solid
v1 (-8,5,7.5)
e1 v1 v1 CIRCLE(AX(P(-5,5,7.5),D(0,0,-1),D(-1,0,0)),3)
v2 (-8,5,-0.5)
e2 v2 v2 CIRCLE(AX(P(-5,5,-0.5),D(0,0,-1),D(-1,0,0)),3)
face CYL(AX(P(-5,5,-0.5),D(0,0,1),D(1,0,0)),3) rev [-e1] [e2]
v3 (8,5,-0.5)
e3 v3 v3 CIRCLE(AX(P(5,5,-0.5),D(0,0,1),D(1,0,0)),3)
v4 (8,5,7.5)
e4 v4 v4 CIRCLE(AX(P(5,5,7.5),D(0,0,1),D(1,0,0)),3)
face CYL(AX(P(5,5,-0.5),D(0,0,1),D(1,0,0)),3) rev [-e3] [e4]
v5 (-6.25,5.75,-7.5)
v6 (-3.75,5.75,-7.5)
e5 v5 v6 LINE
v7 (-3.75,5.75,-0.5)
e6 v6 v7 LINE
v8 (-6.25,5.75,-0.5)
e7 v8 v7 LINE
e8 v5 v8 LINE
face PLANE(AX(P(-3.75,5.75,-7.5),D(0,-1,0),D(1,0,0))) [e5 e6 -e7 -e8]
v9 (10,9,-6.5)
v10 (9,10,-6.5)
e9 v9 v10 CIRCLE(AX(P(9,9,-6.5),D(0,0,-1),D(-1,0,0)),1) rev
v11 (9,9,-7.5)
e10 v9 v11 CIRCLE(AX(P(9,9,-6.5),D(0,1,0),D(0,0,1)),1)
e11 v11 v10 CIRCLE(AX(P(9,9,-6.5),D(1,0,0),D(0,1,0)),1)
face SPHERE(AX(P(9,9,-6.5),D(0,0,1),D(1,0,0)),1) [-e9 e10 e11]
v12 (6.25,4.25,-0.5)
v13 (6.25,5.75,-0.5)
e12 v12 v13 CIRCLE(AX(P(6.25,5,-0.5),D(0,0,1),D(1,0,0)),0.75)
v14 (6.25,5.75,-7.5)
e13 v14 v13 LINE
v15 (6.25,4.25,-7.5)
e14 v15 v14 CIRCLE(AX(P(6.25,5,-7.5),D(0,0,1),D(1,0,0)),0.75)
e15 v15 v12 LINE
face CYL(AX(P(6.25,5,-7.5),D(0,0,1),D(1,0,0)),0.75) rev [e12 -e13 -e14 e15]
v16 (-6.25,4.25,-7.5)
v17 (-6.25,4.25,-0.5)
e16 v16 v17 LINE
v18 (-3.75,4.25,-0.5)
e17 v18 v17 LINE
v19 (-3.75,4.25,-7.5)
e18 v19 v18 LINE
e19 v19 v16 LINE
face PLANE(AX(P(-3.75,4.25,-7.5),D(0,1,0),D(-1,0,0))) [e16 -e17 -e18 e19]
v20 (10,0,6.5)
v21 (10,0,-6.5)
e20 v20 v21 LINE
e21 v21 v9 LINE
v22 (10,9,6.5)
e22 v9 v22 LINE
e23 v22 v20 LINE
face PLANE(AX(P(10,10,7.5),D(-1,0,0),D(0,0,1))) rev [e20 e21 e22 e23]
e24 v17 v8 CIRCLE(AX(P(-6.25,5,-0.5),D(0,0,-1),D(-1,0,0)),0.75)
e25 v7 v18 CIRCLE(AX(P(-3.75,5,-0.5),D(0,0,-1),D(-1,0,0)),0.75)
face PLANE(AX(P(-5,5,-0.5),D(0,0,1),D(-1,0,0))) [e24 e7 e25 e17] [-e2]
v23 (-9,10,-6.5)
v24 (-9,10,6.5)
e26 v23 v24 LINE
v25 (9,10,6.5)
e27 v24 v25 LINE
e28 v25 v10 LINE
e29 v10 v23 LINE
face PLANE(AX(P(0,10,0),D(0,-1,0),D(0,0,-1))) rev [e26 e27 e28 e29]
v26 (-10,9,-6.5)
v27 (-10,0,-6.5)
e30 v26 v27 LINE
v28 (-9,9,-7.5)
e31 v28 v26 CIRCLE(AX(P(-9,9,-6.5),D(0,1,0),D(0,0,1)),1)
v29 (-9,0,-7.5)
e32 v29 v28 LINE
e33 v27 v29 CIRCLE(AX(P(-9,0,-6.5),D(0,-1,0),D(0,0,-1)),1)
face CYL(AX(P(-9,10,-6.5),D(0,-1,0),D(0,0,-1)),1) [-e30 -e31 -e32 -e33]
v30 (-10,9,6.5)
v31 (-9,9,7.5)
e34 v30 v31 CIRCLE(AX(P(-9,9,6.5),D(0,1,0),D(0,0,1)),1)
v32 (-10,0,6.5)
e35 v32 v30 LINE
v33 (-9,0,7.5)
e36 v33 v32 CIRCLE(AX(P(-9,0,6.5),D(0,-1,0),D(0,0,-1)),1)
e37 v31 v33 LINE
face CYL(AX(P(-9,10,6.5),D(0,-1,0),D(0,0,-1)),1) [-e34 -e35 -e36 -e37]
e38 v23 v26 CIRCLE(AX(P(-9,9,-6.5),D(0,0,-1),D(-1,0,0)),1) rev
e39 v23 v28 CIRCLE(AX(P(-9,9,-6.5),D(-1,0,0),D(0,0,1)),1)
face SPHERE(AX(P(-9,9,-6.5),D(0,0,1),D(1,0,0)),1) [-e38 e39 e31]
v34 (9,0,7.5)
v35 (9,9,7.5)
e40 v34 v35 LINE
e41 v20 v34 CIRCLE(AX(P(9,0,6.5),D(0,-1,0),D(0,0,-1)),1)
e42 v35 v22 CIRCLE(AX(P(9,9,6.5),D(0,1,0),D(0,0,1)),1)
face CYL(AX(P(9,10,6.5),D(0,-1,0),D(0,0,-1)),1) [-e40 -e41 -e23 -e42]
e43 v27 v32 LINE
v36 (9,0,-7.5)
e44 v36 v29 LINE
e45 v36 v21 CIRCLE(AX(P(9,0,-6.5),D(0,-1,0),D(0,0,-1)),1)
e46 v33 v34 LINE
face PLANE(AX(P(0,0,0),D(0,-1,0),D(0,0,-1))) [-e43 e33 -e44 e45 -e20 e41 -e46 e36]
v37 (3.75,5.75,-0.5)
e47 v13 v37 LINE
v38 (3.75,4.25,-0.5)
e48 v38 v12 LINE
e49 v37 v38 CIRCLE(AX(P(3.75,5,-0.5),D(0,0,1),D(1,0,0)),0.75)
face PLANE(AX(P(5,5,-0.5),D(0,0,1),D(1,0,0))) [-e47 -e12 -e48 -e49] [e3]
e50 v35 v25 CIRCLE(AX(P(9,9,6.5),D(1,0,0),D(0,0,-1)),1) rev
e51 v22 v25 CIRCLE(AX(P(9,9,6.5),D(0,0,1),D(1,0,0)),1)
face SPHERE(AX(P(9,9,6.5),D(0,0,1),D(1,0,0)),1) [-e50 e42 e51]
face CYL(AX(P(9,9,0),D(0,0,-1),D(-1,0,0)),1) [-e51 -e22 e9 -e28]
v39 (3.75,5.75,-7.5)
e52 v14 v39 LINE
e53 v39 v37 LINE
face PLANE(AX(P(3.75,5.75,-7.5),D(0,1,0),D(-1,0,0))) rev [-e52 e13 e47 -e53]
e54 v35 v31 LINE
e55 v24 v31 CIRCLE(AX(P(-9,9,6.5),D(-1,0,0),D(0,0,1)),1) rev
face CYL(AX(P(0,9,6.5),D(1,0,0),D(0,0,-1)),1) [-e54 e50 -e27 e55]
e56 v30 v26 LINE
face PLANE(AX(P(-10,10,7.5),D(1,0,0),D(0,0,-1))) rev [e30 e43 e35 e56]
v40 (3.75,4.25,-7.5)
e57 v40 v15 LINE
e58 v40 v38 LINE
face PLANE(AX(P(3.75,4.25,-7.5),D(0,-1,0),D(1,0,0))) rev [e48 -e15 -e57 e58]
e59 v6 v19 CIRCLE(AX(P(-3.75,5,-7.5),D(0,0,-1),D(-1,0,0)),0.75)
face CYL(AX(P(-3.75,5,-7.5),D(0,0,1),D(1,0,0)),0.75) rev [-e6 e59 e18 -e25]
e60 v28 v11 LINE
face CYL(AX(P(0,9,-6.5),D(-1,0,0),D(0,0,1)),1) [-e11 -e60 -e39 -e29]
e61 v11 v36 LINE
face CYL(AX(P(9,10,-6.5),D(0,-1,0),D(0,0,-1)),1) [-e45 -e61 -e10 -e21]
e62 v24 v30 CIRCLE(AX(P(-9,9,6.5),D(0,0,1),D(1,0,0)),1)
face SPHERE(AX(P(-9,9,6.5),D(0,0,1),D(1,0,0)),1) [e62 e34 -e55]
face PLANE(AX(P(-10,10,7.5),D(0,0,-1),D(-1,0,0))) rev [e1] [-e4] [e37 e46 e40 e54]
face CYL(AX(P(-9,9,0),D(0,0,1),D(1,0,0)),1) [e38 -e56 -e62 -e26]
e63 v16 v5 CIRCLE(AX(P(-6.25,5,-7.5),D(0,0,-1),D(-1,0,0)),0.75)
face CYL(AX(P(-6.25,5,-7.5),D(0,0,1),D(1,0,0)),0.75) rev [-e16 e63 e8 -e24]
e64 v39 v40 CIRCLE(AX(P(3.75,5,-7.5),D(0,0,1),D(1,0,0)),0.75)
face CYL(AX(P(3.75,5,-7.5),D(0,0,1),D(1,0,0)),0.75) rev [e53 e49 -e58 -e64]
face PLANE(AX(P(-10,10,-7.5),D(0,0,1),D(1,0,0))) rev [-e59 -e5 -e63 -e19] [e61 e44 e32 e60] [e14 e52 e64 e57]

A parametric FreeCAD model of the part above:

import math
import FreeCAD as App
import Part
import Sketcher

V = App.Vector
Q = App.Units.Quantity


def edges_at(feature, points):
    """Names of the edges that pass closest to the given points."""
    edges = feature.Shape.Edges
    near = lambda p: min(range(len(edges)), key=lambda i: edges[i].distToShape(Part.Vertex(*p))[0])
    return sorted({f"Edge{near(p) + 1}" for p in points})


def add_polygon(sketch, points):
    """Adds a closed chain of lines whose ends are joined by coincident constraints."""
    first, n = sketch.GeometryCount, len(points)
    for a, b in zip(points, points[1:] + points[:1]):
        sketch.addGeometry(Part.LineSegment(App.Vector(*a, 0), App.Vector(*b, 0)), False)
    for i in range(n):
        sketch.addConstraint(Sketcher.Constraint("Coincident", first + i, 2, first + (i + 1) % n, 1))

doc = App.newDocument("Part")
body = doc.addObject("PartDesign::Body", "Body")

# Sketch on XZ plane
sketch1 = body.newObject("Sketcher::SketchObject", "Sketch")
sketch1.AttachmentSupport = (doc.getObject("XZ_Plane"), [""])
sketch1.MapMode = "FlatFace"
add_polygon(sketch1, [(-10, -8), (-10, 8), (10, 8), (10, -8)])  # lines 0-3
sketch1.addConstraint(Sketcher.Constraint("Vertical", 0))
sketch1.addConstraint(Sketcher.Constraint("Horizontal", 1))
sketch1.addConstraint(Sketcher.Constraint("Vertical", 2))
sketch1.addConstraint(Sketcher.Constraint("Horizontal", 3))
sketch1.addConstraint(Sketcher.Constraint("Symmetric", 0, 2, 2, 2, -1, 1))
sketch1.addConstraint(Sketcher.Constraint("DistanceX", 1, 1, 1, 2, Q("20 mm")))
sketch1.addConstraint(Sketcher.Constraint("DistanceY", 0, 1, 0, 2, Q("15 mm")))
pad1 = body.newObject("PartDesign::Pad", "Pad")
pad1.Profile = sketch1
pad1.Length = 10
pad1.Reversed = True

# Sketch on XY plane
sketch2 = body.newObject("Sketcher::SketchObject", "Sketch001")
sketch2.AttachmentSupport = (doc.getObject("XY_Plane"), [""])
sketch2.MapMode = "FlatFace"
sketch2.AttachmentOffset = App.Placement(V(0, 0, 7.5), App.Rotation())
sketch2.addGeometry(Part.Circle(V(5, 5, 0), V(0, 0, 1), 3), False)
sketch2.addConstraint(Sketcher.Constraint("Diameter", 0, Q("6 mm")))
sketch2.addConstraint(Sketcher.Constraint("DistanceX", -1, 1, 0, 3, Q("5 mm")))
sketch2.addConstraint(Sketcher.Constraint("DistanceY", -1, 1, 0, 3, Q("5 mm")))
pocket1 = body.newObject("PartDesign::Pocket", "Pocket")
pocket1.Profile = sketch2
pocket1.Length = 8

# Sketch on XY plane
sketch3 = body.newObject("Sketcher::SketchObject", "Sketch002")
sketch3.AttachmentSupport = (doc.getObject("XY_Plane"), [""])
sketch3.MapMode = "FlatFace"
sketch3.AttachmentOffset = App.Placement(V(0, 0, -0.5), App.Rotation())
sketch3.addGeometry(Part.LineSegment(V(6.2, 5.8, 0), V(3.8, 5.8, 0)), False)
sketch3.addGeometry(Part.ArcOfCircle(Part.Circle(V(3.8, 5, 0), V(0, 0, 1), 0.8), math.radians(90), math.radians(270)), False)
sketch3.addGeometry(Part.LineSegment(V(3.8, 4.2, 0), V(6.2, 4.2, 0)), False)
sketch3.addGeometry(Part.ArcOfCircle(Part.Circle(V(6.2, 5, 0), V(0, 0, 1), 0.8), math.radians(-90), math.radians(90)), False)
sketch3.addConstraint(Sketcher.Constraint("Tangent", 0, 2, 1, 1))
sketch3.addConstraint(Sketcher.Constraint("Tangent", 1, 2, 2, 1))
sketch3.addConstraint(Sketcher.Constraint("Tangent", 2, 2, 3, 1))
sketch3.addConstraint(Sketcher.Constraint("Tangent", 3, 2, 0, 1))
sketch3.addConstraint(Sketcher.Constraint("Horizontal", 0))
sketch3.addConstraint(Sketcher.Constraint("Horizontal", 2))
sketch3.addConstraint(Sketcher.Constraint("Radius", 1, Q("0.75 mm")))
sketch3.addConstraint(Sketcher.Constraint("DistanceX", 0, 2, 0, 1, Q("2.5 mm")))
sketch3.addConstraint(Sketcher.Constraint("DistanceY", -1, 1, 1, 3, Q("5 mm")))
sketch3.addConstraint(Sketcher.Constraint("DistanceX", -1, 1, 1, 3, Q("3.75 mm")))
pocket2 = body.newObject("PartDesign::Pocket", "Pocket001")
pocket2.Profile = sketch3
pocket2.Type = "ThroughAll"
doc.recompute()

mirrored = body.newObject("PartDesign::Mirrored", "Mirrored")
mirrored.Originals = [pocket1, pocket2]
mirrored.MirrorPlane = (doc.getObject("YZ_Plane"), [""])
body.Tip = mirrored
doc.recompute()

fillet = body.newObject("PartDesign::Fillet", "Fillet")
fillet.Base = (mirrored, edges_at(mirrored, [
    (-10, 10, 0),
    (0, 10, 7.5),
    (10, 10, 0),
    (0, 10, -7.5),
    (10, 5, 7.5),
    (-10, 5, 7.5),
    (-10, 5, -7.5),
    (10, 5, -7.5),
]))
fillet.Radius = 1

doc.recompute()
